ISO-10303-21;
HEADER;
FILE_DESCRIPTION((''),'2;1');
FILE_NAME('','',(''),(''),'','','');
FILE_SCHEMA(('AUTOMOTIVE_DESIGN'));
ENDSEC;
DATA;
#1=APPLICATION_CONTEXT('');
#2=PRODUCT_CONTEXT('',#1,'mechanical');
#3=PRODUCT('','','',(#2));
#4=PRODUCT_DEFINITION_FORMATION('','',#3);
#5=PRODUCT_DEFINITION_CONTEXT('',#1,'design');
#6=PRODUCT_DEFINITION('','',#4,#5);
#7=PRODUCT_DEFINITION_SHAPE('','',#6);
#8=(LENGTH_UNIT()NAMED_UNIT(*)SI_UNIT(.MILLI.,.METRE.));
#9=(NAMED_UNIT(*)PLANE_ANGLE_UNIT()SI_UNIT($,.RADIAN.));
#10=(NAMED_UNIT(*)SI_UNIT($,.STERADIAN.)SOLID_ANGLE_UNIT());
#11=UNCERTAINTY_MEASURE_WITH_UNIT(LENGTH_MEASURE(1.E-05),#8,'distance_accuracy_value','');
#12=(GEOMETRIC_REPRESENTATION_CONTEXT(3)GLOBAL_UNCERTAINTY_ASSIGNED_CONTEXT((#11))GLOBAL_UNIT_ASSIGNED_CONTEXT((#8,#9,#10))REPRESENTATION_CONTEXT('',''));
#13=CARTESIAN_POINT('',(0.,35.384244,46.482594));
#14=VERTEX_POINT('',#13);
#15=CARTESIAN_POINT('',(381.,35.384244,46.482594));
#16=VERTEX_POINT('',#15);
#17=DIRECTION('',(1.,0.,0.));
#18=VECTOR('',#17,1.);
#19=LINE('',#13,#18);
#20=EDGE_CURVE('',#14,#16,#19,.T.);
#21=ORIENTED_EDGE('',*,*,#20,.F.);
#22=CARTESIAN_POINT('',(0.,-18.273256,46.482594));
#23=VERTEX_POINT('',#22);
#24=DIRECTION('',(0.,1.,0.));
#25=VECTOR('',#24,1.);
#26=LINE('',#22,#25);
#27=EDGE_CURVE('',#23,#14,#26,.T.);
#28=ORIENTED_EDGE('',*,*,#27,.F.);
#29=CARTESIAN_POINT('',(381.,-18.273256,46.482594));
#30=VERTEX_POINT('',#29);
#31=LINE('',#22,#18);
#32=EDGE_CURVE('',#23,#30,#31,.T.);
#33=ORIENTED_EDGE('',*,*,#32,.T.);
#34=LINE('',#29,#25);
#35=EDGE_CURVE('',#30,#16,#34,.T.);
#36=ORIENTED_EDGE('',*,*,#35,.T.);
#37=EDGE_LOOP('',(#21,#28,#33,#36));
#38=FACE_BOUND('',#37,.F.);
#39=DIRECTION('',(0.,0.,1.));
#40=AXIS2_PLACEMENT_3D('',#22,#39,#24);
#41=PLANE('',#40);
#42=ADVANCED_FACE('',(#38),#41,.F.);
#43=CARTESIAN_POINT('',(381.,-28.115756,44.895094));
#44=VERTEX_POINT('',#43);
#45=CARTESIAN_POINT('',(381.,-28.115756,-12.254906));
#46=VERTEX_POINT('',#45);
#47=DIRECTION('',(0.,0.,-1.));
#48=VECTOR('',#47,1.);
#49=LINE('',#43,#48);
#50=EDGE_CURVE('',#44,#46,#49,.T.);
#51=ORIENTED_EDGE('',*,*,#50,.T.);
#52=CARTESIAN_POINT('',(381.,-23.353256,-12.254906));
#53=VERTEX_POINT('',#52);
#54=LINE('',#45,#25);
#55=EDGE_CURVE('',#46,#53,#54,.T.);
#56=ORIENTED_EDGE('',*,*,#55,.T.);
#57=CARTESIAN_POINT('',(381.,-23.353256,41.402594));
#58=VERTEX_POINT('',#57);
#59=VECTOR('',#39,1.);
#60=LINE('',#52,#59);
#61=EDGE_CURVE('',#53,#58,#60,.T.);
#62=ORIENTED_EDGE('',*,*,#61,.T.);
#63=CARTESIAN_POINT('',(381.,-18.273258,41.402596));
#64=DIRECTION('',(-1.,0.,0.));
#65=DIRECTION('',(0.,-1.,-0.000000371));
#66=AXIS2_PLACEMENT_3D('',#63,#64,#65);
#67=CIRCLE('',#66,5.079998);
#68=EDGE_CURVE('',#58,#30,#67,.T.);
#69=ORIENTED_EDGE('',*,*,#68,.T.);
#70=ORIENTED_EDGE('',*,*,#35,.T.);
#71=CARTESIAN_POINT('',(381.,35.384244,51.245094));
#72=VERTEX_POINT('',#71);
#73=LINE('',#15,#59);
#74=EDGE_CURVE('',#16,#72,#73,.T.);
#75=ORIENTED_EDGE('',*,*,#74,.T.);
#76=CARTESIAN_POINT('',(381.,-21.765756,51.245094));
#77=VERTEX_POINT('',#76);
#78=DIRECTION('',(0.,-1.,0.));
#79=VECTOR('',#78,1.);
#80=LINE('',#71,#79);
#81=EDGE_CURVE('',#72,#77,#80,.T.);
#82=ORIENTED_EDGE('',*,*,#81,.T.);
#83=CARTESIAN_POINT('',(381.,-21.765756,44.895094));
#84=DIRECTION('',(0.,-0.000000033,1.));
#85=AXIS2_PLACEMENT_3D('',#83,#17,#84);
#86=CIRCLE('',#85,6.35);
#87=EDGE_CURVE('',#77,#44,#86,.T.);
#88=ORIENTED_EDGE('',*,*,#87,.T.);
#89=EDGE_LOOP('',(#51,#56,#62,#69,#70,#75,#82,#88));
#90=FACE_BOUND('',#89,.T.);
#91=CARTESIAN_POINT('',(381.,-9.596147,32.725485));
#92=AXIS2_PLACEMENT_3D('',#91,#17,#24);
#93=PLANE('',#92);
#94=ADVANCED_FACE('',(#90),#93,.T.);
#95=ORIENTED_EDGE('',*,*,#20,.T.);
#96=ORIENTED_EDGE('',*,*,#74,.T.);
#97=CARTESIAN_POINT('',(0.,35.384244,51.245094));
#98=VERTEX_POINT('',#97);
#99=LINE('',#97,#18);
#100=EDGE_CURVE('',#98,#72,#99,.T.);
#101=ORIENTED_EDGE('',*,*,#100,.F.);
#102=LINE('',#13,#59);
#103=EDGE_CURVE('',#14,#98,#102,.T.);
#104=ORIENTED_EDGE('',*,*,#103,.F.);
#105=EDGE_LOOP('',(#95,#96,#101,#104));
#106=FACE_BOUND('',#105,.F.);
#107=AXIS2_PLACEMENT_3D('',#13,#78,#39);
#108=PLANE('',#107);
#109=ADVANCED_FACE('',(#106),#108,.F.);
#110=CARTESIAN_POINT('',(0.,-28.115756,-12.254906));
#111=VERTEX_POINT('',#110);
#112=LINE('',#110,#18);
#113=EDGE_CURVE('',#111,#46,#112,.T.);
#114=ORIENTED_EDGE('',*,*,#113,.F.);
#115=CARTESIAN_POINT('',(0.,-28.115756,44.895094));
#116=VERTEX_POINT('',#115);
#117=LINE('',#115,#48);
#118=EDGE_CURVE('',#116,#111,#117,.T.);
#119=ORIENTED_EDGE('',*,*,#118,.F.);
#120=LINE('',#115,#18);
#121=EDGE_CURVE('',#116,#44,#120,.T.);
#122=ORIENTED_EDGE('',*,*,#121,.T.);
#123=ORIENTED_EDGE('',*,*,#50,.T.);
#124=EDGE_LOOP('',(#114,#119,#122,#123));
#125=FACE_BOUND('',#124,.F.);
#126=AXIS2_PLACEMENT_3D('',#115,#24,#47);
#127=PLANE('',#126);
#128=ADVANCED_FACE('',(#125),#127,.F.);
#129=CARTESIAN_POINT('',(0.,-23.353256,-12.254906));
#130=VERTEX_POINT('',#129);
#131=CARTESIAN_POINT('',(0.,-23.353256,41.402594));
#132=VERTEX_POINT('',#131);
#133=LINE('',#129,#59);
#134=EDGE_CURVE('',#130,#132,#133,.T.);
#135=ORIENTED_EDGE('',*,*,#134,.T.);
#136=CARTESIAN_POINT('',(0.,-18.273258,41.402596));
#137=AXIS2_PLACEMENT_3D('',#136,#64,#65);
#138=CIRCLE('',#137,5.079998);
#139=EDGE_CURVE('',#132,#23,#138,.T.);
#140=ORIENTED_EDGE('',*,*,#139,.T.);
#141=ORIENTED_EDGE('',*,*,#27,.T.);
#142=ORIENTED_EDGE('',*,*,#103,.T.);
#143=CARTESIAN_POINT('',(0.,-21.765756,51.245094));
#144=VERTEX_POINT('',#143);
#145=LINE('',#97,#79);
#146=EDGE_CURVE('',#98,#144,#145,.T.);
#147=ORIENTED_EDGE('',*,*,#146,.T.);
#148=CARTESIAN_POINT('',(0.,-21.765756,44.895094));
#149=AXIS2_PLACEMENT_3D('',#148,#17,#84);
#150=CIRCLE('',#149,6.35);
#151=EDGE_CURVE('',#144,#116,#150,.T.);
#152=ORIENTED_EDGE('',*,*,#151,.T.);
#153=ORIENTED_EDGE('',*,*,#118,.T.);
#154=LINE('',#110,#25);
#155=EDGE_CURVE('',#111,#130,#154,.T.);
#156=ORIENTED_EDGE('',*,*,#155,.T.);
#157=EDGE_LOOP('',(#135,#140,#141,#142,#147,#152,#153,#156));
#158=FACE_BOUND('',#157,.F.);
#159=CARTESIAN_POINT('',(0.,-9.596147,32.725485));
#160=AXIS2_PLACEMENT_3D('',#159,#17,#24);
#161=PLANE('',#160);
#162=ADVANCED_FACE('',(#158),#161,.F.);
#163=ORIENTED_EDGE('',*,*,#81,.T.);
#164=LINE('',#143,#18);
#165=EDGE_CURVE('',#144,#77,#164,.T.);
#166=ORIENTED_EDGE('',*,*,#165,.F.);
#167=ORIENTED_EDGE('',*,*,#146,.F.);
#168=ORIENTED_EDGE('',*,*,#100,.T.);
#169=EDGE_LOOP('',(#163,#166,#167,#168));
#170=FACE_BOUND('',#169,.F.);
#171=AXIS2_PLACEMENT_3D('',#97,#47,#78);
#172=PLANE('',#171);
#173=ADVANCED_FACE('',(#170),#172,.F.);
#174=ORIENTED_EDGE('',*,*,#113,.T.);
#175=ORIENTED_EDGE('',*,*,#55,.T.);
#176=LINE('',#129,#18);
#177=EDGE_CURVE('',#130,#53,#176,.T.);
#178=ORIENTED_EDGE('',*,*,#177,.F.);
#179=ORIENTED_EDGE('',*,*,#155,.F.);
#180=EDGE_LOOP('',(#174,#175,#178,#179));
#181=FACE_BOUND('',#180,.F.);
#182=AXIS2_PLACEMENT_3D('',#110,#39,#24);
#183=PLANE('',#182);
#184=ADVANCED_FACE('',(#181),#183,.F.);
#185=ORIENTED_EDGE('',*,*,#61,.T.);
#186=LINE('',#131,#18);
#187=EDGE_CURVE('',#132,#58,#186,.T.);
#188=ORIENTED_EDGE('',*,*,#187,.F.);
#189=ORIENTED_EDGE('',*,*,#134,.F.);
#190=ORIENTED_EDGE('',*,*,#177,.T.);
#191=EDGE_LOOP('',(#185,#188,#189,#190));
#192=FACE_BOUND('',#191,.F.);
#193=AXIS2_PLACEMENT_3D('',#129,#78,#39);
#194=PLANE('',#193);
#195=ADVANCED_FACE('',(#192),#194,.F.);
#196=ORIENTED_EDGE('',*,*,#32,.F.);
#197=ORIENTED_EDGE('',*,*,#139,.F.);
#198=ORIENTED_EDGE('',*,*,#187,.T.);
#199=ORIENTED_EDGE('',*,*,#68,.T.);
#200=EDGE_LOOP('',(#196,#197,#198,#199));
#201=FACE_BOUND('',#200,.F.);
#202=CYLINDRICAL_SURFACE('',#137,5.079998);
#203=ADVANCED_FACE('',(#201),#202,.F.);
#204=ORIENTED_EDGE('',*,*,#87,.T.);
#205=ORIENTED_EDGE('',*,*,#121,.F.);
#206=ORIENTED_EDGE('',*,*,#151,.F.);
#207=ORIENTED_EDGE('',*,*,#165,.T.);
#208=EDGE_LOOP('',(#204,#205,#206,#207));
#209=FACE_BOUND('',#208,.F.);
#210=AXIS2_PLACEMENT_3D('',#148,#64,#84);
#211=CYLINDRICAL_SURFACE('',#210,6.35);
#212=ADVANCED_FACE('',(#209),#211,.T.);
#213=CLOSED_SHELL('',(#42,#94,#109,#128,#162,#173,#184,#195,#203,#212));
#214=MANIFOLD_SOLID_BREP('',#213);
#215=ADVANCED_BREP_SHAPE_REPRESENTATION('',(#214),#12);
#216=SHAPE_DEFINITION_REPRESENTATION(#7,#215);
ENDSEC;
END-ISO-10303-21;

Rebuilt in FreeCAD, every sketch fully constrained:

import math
import FreeCAD as App
import Part
import Sketcher
Q = App.Units.Quantity

doc = App.newDocument("Part")
body = doc.addObject("PartDesign::Body", "Body")

sketch1 = body.newObject("Sketcher::SketchObject", "Sketch")
sketch1.AttachmentSupport = (doc.getObject("YZ_Plane"), [""])
sketch1.MapMode = "FlatFace"
sketch1.addGeometry([
    Part.LineSegment(App.Vector(-28.1, 44.9, 0), App.Vector(-28.1, -12.3, 0)),
    Part.LineSegment(App.Vector(-28.1, -12.3, 0), App.Vector(-23.4, -12.3, 0)),
    Part.LineSegment(App.Vector(-23.4, -12.3, 0), App.Vector(-23.4, 41.4, 0)),
    Part.ArcOfCircle(Part.Circle(App.Vector(-18.3, 41.4, 0), App.Vector(0, 0, 1), 5.1), math.radians(90), math.radians(180)),
    Part.LineSegment(App.Vector(-18.3, 46.5, 0), App.Vector(35.4, 46.5, 0)),
    Part.LineSegment(App.Vector(35.4, 46.5, 0), App.Vector(35.4, 51.2, 0)),
    Part.LineSegment(App.Vector(35.4, 51.2, 0), App.Vector(-21.8, 51.2, 0)),
    Part.ArcOfCircle(Part.Circle(App.Vector(-21.8, 44.9, 0), App.Vector(0, 0, 1), 6.4), math.radians(90), math.radians(180)),
], False)
sketch1.addConstraint([
    Sketcher.Constraint("Coincident", 0, 2, 1, 1),
    Sketcher.Constraint("Coincident", 1, 2, 2, 1),
    Sketcher.Constraint("Tangent", 2, 2, 3, 2),
    Sketcher.Constraint("Tangent", 3, 1, 4, 1),
    Sketcher.Constraint("Coincident", 4, 2, 5, 1),
    Sketcher.Constraint("Coincident", 5, 2, 6, 1),
    Sketcher.Constraint("Tangent", 6, 2, 7, 1),
    Sketcher.Constraint("Tangent", 7, 2, 0, 1),
    Sketcher.Constraint("Vertical", 0),
    Sketcher.Constraint("Horizontal", 1),
    Sketcher.Constraint("Vertical", 2),
    Sketcher.Constraint("Horizontal", 4),
    Sketcher.Constraint("Vertical", 5),
    Sketcher.Constraint("Horizontal", 6),
    Sketcher.Constraint("Equal", 6, 0),
    Sketcher.Constraint("Equal", 4, 2),
    Sketcher.Constraint("Radius", 3, Q("0.1999999 in")),
    Sketcher.Constraint("Radius", 7, Q("0.25 in")),
    Sketcher.Constraint("DistanceX", 6, 2, 6, 1, Q("2.25 in")),
    Sketcher.Constraint("DistanceX", 1, 1, 1, 2, Q("0.1875 in")),
    Sketcher.Constraint("DistanceX", 3, 3, -1, 1, Q("18.273258 mm")),
    Sketcher.Constraint("DistanceY", -1, 1, 3, 3, Q("41.402596 mm")),
])
pad1 = body.newObject("PartDesign::Pad", "Pad")
pad1.Profile = sketch1
pad1.Length = Q("15 in")

doc.recompute()
